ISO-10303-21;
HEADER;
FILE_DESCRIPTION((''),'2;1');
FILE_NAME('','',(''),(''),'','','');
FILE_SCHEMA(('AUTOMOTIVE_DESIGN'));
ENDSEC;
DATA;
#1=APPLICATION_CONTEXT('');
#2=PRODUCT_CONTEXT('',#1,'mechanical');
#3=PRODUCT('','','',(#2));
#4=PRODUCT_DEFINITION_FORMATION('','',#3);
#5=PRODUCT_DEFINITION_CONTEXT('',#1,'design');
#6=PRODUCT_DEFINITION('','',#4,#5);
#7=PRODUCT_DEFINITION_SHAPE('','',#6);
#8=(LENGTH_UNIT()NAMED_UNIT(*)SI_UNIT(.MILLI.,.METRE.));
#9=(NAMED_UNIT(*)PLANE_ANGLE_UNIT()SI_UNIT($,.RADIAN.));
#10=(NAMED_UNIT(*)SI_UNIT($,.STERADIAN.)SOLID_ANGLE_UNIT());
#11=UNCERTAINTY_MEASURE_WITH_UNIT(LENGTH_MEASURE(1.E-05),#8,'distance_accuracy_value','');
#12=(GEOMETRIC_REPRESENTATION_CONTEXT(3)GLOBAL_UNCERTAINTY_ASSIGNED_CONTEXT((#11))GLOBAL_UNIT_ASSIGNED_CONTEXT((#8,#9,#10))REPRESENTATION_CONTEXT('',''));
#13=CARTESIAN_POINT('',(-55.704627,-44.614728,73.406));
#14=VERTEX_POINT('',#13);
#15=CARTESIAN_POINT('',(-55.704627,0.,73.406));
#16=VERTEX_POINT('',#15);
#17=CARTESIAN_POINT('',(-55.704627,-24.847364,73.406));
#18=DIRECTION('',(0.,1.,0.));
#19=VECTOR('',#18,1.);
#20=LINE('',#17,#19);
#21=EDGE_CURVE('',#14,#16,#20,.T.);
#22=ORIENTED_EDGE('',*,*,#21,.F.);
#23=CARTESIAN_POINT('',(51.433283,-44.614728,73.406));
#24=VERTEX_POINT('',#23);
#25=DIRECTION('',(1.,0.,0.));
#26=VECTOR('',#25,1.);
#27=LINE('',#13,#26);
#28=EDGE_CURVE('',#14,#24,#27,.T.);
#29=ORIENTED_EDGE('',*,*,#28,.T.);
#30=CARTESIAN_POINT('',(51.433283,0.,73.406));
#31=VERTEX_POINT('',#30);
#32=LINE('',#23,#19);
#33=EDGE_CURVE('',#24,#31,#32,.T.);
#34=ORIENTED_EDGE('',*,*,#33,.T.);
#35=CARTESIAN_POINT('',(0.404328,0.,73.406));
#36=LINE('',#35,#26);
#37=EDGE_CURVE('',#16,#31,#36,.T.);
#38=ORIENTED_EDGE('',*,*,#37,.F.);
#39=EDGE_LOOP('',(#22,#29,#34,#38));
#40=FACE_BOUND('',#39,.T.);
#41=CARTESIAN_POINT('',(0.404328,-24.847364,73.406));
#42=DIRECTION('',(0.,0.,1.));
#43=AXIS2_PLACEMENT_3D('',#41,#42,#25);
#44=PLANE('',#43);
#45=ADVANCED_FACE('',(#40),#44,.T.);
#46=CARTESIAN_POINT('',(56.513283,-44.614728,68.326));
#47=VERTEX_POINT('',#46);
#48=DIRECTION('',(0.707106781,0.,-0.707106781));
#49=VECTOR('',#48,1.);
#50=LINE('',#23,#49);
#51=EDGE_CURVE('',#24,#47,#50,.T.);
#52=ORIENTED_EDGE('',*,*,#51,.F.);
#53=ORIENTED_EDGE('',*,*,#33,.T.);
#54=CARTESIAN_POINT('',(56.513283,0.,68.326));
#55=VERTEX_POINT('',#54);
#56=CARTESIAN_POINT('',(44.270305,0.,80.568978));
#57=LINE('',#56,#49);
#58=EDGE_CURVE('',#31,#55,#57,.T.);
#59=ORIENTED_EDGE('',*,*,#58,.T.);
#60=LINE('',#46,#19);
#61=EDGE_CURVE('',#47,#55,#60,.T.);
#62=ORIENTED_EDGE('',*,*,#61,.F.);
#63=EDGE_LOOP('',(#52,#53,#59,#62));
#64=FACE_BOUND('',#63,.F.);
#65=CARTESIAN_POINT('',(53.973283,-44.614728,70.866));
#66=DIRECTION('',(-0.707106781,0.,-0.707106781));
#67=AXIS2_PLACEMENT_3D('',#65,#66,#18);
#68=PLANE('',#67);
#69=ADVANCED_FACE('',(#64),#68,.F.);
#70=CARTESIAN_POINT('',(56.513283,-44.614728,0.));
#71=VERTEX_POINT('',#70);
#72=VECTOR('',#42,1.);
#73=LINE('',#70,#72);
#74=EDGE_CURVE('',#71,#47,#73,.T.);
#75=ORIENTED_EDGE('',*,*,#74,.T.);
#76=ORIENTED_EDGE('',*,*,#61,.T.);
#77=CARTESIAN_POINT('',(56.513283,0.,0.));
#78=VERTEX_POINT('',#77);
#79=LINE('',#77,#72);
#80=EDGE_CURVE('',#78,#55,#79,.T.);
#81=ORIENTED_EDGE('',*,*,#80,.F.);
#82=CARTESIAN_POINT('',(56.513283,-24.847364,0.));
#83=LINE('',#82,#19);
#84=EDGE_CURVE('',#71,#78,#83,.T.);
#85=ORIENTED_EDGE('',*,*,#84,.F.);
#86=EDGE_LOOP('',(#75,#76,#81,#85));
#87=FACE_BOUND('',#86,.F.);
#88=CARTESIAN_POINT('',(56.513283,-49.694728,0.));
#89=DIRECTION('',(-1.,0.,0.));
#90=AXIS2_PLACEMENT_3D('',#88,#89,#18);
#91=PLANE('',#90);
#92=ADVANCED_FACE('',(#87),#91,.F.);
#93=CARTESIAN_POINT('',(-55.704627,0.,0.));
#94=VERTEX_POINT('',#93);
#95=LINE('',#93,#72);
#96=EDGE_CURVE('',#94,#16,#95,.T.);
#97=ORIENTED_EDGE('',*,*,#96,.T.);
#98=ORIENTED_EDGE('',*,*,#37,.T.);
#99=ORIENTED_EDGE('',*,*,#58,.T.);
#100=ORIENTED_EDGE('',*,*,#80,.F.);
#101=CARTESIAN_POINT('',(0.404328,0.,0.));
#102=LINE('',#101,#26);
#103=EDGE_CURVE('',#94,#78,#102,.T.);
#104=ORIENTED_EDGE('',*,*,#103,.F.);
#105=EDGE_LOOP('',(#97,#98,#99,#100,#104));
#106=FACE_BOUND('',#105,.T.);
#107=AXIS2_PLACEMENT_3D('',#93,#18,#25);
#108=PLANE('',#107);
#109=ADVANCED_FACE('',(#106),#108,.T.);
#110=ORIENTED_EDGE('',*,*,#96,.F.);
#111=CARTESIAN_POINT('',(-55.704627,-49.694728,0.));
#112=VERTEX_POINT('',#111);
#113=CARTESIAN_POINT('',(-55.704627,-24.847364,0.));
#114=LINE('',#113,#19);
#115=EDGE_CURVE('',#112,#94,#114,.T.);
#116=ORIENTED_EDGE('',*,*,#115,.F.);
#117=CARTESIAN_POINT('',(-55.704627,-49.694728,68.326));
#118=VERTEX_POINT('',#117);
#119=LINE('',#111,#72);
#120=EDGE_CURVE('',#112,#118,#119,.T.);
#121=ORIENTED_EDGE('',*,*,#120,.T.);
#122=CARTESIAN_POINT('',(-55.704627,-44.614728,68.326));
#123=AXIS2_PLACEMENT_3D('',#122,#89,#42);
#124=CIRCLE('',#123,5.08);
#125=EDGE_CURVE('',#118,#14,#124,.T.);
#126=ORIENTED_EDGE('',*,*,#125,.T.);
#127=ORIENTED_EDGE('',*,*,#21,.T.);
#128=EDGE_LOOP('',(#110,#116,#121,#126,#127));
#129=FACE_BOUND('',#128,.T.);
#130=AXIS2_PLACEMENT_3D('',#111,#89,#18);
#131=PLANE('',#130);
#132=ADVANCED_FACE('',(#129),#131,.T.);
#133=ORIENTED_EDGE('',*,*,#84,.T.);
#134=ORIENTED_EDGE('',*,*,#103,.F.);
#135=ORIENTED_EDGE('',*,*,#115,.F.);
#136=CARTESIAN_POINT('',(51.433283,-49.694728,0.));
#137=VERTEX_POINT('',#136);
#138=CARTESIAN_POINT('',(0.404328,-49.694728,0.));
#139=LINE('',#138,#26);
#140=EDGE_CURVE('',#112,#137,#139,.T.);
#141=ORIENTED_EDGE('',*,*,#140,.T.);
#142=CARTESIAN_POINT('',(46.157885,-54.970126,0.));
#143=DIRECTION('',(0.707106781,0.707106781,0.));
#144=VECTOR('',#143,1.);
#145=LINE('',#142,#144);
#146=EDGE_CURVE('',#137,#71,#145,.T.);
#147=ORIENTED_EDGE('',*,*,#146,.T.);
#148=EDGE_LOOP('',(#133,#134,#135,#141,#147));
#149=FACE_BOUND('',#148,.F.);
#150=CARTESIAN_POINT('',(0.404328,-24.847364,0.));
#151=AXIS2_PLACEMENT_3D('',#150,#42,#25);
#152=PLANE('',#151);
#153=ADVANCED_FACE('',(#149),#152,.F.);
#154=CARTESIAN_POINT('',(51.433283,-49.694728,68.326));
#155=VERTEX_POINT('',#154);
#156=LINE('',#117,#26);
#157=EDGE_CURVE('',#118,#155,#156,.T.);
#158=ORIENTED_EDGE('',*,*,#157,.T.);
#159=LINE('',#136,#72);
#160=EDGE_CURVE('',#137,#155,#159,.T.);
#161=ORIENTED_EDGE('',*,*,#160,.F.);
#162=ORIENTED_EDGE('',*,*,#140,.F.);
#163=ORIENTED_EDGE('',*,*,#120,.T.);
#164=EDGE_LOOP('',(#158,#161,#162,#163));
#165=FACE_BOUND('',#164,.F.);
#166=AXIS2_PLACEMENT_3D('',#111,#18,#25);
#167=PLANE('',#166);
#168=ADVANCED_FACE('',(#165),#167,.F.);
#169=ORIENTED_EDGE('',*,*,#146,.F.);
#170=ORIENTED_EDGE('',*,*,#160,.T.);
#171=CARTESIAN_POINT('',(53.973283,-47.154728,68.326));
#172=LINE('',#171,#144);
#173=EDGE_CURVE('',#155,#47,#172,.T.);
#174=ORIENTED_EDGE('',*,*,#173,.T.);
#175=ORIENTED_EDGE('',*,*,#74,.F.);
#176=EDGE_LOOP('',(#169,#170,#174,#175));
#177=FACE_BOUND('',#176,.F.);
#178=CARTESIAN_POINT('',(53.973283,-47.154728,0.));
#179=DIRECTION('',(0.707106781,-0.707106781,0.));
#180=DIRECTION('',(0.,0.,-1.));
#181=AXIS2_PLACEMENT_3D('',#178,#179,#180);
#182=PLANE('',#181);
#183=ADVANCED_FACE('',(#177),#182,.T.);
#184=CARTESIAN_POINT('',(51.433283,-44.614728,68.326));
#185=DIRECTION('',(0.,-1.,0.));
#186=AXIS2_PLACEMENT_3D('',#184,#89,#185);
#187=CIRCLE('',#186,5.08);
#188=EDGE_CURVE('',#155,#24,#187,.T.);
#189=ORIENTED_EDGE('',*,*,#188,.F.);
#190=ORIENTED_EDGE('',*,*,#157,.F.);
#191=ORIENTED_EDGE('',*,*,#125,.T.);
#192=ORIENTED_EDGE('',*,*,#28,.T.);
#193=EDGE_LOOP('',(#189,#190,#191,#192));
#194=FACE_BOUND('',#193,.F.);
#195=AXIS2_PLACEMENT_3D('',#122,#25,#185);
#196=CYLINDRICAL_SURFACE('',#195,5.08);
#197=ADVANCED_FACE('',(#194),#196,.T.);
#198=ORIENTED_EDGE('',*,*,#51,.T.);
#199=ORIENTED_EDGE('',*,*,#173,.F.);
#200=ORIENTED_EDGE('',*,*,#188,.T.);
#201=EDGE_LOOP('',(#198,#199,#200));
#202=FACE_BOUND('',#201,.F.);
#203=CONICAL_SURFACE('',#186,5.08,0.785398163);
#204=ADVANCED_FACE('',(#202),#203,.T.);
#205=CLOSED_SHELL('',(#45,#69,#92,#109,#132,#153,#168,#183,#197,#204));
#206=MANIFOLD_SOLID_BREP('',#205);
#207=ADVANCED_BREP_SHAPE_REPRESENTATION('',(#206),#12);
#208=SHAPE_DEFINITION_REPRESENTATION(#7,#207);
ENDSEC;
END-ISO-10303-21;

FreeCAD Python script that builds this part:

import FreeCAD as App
import Part
import Sketcher
from FreeCAD import Vector
Q = App.Units.Quantity


def edges_at(feature, points):
    """Names of the edges that pass closest to the given points."""
    edges = feature.Shape.Edges
    near = lambda p: min(range(len(edges)), key=lambda i: edges[i].distToShape(Part.Vertex(*p))[0])
    return sorted({f"Edge{near(p) + 1}" for p in points})


def add_polygon(sketch, points):
    """Adds a closed chain of lines whose ends are joined by coincident constraints."""
    first, n = sketch.GeometryCount, len(points)
    for a, b in zip(points, points[1:] + points[:1]):
        sketch.addGeometry(Part.LineSegment(App.Vector(*a, 0), App.Vector(*b, 0)), False)
    for i in range(n):
        sketch.addConstraint(Sketcher.Constraint("Coincident", first + i, 2, first + (i + 1) % n, 1))

doc = App.newDocument("Part")
body = doc.addObject("PartDesign::Body", "Body")

sketch1 = body.newObject("Sketcher::SketchObject", "Sketch")
sketch1.AttachmentSupport = (doc.getObject("XY_Plane"), [""])
sketch1.MapMode = "FlatFace"
add_polygon(sketch1, [(-56, 0), (-56, -50), (57, -50), (57, 0)])
sketch1.addConstraint([
    Sketcher.Constraint("Vertical", 0),
    Sketcher.Constraint("Horizontal", 1),
    Sketcher.Constraint("Vertical", 2),
    Sketcher.Constraint("Horizontal", 3),
    Sketcher.Constraint("PointOnObject", 2, 2, -1),
    Sketcher.Constraint("DistanceX", 1, 1, 1, 2, 112.21791),
    Sketcher.Constraint("DistanceY", 0, 2, 0, 1, 49.694728),
    Sketcher.Constraint("DistanceX", 0, 2, -1, 1, 55.704627),
])
pad1 = body.newObject("PartDesign::Pad", "Pad")
pad1.Profile = sketch1
pad1.Length = Q("2.89 in")
doc.recompute()

fillet = body.newObject("PartDesign::Fillet", "Fillet")
fillet.Base = (pad1, edges_at(pad1, [(0.404, -49.695, 73.406)]))
fillet.Radius = Q("0.2 in")
doc.recompute()

chamfer = body.newObject("PartDesign::Chamfer", "Chamfer")
chamfer.Base = (fillet, edges_at(fillet, [(56.513, -22.307, 73.406)]))
chamfer.Size = Q("0.2 in")

doc.recompute()
